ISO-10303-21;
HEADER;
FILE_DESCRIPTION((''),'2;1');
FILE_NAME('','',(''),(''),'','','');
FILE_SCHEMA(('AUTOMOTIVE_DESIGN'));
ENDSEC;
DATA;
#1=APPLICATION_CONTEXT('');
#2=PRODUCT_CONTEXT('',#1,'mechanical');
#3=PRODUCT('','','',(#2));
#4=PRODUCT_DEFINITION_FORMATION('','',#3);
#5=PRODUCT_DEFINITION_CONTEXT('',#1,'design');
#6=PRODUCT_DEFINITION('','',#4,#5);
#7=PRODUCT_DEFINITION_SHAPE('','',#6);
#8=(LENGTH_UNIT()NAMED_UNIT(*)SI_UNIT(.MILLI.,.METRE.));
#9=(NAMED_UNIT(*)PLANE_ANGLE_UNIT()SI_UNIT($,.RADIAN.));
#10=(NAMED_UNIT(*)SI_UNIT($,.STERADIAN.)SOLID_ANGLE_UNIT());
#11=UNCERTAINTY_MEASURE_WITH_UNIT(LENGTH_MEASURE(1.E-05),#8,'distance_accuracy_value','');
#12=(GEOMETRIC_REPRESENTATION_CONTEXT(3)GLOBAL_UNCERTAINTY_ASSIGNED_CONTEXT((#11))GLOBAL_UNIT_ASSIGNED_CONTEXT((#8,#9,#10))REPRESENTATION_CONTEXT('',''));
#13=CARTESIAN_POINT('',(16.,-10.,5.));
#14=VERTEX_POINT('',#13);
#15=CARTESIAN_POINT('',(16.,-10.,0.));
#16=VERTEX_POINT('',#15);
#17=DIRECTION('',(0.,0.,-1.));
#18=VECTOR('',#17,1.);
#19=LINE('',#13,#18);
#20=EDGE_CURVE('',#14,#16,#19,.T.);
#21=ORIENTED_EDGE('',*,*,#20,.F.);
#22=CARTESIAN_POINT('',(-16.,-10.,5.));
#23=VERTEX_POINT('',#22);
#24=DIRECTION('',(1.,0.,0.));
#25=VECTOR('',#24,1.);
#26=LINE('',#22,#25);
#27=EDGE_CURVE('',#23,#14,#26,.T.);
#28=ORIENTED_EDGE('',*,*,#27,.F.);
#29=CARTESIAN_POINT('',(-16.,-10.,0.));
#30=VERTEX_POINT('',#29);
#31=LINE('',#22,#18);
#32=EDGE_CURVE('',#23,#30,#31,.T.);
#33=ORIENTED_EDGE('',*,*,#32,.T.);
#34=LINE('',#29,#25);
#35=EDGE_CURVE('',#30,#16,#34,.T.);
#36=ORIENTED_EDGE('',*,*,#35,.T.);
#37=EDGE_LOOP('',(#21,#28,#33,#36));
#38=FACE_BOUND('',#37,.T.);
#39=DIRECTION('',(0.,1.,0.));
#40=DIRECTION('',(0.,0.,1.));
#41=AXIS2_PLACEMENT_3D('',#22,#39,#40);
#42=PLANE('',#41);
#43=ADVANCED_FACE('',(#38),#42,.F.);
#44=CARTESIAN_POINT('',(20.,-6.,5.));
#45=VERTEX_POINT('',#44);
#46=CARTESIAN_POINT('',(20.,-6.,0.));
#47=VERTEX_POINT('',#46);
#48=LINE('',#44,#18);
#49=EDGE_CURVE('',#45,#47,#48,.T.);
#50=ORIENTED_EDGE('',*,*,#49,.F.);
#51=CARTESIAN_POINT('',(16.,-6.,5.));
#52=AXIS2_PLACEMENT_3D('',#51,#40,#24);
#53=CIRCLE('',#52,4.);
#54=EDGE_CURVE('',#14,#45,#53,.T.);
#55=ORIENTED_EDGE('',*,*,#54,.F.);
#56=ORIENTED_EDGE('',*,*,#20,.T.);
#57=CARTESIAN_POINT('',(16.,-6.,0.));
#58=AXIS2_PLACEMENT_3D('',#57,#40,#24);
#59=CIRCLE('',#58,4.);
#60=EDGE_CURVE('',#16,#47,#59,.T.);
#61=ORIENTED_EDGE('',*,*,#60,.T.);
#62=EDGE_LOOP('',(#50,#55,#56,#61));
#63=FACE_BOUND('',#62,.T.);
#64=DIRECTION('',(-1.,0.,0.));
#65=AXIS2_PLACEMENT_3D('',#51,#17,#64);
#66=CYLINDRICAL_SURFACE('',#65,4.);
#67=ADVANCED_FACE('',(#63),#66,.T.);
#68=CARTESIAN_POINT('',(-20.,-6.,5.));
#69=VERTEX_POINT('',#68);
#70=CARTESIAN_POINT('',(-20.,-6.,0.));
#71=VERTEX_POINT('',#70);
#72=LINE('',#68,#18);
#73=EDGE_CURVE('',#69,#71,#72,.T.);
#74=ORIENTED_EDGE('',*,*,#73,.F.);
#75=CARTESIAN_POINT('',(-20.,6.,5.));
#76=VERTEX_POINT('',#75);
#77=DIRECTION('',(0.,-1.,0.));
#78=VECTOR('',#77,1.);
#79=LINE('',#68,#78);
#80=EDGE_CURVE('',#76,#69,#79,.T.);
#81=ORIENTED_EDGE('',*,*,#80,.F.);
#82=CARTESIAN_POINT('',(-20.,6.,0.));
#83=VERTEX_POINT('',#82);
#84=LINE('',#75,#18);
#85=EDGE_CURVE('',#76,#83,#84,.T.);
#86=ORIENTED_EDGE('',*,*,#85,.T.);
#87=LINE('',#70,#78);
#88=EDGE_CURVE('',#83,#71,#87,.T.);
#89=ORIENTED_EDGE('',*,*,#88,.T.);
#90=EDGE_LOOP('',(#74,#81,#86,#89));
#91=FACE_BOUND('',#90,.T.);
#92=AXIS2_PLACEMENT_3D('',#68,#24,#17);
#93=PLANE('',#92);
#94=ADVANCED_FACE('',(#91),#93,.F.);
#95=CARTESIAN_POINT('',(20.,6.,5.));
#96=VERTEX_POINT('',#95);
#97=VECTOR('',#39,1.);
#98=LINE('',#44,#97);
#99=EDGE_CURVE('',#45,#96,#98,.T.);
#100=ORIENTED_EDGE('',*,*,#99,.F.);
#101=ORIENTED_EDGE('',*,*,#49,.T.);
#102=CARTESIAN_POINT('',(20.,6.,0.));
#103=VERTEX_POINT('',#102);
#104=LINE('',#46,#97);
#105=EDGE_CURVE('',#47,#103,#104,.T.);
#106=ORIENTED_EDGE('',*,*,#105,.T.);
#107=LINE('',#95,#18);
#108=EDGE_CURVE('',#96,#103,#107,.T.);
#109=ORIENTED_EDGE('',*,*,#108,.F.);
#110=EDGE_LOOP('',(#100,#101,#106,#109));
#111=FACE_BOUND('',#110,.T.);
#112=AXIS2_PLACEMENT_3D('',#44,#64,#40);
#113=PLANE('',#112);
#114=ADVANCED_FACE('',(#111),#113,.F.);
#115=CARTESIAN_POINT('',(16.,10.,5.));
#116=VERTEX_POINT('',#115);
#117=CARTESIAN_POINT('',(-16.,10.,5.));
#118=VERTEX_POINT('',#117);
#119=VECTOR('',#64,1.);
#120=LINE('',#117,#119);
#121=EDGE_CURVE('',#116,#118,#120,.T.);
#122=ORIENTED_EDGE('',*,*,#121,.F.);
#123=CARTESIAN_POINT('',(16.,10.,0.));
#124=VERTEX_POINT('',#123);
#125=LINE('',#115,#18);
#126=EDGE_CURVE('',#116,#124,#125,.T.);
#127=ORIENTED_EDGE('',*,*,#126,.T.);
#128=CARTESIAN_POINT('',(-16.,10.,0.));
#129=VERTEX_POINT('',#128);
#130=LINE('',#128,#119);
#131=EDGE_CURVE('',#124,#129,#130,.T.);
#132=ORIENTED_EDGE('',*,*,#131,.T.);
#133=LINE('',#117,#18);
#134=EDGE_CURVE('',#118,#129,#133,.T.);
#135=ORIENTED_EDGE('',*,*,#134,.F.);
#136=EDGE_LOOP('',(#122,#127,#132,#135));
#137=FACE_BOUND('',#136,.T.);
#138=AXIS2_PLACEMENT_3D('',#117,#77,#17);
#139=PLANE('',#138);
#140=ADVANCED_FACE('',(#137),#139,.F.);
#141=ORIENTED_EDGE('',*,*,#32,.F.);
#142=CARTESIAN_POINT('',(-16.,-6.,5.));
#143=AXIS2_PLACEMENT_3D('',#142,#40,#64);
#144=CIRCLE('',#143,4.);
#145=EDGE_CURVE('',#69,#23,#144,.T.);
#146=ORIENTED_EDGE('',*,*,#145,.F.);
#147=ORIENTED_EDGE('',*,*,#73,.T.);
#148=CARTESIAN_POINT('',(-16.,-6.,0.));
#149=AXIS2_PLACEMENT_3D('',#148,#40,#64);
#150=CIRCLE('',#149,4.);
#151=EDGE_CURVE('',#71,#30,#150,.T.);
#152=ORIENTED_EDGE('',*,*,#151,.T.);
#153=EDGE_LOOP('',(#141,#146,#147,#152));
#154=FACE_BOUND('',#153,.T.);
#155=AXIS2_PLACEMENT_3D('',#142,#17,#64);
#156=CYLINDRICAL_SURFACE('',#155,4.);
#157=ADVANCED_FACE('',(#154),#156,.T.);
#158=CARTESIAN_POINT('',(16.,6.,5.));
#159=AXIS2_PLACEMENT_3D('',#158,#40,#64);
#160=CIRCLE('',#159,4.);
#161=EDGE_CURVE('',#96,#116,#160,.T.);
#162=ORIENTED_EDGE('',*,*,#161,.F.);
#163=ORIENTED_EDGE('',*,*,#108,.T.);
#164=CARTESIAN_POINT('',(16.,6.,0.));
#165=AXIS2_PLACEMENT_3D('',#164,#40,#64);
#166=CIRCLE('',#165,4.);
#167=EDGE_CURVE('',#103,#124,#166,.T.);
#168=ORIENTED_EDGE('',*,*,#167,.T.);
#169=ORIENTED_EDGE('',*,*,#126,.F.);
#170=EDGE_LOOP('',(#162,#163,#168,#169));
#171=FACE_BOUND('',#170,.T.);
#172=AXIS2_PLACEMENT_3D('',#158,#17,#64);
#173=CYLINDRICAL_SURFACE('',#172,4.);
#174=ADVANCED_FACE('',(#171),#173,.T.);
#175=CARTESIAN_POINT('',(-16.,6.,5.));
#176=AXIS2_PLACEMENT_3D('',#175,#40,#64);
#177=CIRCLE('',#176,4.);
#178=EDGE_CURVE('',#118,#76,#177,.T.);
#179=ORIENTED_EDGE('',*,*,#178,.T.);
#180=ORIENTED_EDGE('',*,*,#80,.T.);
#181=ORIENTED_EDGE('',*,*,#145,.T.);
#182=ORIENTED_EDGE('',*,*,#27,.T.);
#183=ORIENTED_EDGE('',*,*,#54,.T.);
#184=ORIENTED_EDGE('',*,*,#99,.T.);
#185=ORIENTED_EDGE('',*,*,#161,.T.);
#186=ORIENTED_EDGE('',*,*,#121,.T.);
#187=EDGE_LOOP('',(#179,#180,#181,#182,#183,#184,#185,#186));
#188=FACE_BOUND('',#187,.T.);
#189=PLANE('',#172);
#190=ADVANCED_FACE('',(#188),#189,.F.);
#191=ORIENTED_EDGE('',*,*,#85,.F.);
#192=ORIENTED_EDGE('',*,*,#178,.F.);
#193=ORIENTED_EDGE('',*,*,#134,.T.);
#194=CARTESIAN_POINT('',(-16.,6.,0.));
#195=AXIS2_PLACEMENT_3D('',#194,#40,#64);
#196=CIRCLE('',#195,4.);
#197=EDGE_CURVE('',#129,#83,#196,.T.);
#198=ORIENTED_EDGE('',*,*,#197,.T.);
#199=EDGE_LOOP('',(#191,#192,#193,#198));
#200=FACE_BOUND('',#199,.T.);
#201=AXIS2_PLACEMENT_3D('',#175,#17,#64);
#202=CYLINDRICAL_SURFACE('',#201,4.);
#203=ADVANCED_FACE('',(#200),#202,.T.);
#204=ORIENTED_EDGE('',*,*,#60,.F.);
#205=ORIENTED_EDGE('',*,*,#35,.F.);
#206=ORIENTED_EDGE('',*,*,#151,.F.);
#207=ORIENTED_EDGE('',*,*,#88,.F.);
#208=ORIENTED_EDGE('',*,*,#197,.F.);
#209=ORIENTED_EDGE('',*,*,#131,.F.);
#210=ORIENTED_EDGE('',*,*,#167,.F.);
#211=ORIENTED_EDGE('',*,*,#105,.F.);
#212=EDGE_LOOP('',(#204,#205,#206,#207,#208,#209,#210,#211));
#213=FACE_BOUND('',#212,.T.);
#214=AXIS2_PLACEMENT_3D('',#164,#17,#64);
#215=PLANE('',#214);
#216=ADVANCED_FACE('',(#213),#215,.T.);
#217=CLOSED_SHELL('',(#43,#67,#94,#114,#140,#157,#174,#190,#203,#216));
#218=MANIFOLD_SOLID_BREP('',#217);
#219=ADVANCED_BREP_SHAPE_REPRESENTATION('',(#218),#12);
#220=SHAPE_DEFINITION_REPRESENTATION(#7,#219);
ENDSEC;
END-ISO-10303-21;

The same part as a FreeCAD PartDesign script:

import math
import FreeCAD as App
import Part
import Sketcher
from FreeCAD import Vector

doc = App.newDocument("Part")
body = doc.addObject("PartDesign::Body", "Body")

sketch1 = body.newObject("Sketcher::SketchObject", "Sketch")
sketch1.AttachmentSupport = (doc.getObject("XY_Plane"), [""])
sketch1.MapMode = "FlatFace"
sketch1.addGeometry(Part.LineSegment(Vector(-16, -10, 0), Vector(16, -10, 0)), False)
sketch1.addGeometry(Part.ArcOfCircle(Part.Circle(Vector(16, -6, 0), Vector(0, 0, 1), 4), math.radians(-90), math.radians(0)), False)
sketch1.addGeometry(Part.LineSegment(Vector(20, -6, 0), Vector(20, 6, 0)), False)
sketch1.addGeometry(Part.ArcOfCircle(Part.Circle(Vector(16, 6, 0), Vector(0, 0, 1), 4), math.radians(0), math.radians(90)), False)
sketch1.addGeometry(Part.LineSegment(Vector(16, 10, 0), Vector(-16, 10, 0)), False)
sketch1.addGeometry(Part.ArcOfCircle(Part.Circle(Vector(-16, 6, 0), Vector(0, 0, 1), 4), math.radians(90), math.radians(180)), False)
sketch1.addGeometry(Part.LineSegment(Vector(-20, 6, 0), Vector(-20, -6, 0)), False)
sketch1.addGeometry(Part.ArcOfCircle(Part.Circle(Vector(-16, -6, 0), Vector(0, 0, 1), 4), math.radians(180), math.radians(270)), False)
sketch1.addConstraint(Sketcher.Constraint("Tangent", 0, 2, 1, 1))
sketch1.addConstraint(Sketcher.Constraint("Tangent", 1, 2, 2, 1))
sketch1.addConstraint(Sketcher.Constraint("Tangent", 2, 2, 3, 1))
sketch1.addConstraint(Sketcher.Constraint("Tangent", 3, 2, 4, 1))
sketch1.addConstraint(Sketcher.Constraint("Tangent", 4, 2, 5, 1))
sketch1.addConstraint(Sketcher.Constraint("Tangent", 5, 2, 6, 1))
sketch1.addConstraint(Sketcher.Constraint("Tangent", 6, 2, 7, 1))
sketch1.addConstraint(Sketcher.Constraint("Tangent", 7, 2, 0, 1))
sketch1.addConstraint(Sketcher.Constraint("Horizontal", 0))
sketch1.addConstraint(Sketcher.Constraint("Vertical", 2))
sketch1.addConstraint(Sketcher.Constraint("Horizontal", 4))
sketch1.addConstraint(Sketcher.Constraint("Vertical", 6))
sketch1.addConstraint(Sketcher.Constraint("Equal", 1, 3))
sketch1.addConstraint(Sketcher.Constraint("Equal", 3, 5))
sketch1.addConstraint(Sketcher.Constraint("Equal", 5, 7))
sketch1.addConstraint(Sketcher.Constraint("Symmetric", 1, 3, 5, 3, -1, 1))
sketch1.addConstraint(Sketcher.Constraint("Radius", 1, 4.0))
sketch1.addConstraint(Sketcher.Constraint("DistanceX", 0, 1, 0, 2, 32.0))
sketch1.addConstraint(Sketcher.Constraint("DistanceY", 2, 1, 2, 2, 12.0))
pad1 = body.newObject("PartDesign::Pad", "Pad")
pad1.Profile = sketch1
pad1.Length = 5

doc.recompute()
